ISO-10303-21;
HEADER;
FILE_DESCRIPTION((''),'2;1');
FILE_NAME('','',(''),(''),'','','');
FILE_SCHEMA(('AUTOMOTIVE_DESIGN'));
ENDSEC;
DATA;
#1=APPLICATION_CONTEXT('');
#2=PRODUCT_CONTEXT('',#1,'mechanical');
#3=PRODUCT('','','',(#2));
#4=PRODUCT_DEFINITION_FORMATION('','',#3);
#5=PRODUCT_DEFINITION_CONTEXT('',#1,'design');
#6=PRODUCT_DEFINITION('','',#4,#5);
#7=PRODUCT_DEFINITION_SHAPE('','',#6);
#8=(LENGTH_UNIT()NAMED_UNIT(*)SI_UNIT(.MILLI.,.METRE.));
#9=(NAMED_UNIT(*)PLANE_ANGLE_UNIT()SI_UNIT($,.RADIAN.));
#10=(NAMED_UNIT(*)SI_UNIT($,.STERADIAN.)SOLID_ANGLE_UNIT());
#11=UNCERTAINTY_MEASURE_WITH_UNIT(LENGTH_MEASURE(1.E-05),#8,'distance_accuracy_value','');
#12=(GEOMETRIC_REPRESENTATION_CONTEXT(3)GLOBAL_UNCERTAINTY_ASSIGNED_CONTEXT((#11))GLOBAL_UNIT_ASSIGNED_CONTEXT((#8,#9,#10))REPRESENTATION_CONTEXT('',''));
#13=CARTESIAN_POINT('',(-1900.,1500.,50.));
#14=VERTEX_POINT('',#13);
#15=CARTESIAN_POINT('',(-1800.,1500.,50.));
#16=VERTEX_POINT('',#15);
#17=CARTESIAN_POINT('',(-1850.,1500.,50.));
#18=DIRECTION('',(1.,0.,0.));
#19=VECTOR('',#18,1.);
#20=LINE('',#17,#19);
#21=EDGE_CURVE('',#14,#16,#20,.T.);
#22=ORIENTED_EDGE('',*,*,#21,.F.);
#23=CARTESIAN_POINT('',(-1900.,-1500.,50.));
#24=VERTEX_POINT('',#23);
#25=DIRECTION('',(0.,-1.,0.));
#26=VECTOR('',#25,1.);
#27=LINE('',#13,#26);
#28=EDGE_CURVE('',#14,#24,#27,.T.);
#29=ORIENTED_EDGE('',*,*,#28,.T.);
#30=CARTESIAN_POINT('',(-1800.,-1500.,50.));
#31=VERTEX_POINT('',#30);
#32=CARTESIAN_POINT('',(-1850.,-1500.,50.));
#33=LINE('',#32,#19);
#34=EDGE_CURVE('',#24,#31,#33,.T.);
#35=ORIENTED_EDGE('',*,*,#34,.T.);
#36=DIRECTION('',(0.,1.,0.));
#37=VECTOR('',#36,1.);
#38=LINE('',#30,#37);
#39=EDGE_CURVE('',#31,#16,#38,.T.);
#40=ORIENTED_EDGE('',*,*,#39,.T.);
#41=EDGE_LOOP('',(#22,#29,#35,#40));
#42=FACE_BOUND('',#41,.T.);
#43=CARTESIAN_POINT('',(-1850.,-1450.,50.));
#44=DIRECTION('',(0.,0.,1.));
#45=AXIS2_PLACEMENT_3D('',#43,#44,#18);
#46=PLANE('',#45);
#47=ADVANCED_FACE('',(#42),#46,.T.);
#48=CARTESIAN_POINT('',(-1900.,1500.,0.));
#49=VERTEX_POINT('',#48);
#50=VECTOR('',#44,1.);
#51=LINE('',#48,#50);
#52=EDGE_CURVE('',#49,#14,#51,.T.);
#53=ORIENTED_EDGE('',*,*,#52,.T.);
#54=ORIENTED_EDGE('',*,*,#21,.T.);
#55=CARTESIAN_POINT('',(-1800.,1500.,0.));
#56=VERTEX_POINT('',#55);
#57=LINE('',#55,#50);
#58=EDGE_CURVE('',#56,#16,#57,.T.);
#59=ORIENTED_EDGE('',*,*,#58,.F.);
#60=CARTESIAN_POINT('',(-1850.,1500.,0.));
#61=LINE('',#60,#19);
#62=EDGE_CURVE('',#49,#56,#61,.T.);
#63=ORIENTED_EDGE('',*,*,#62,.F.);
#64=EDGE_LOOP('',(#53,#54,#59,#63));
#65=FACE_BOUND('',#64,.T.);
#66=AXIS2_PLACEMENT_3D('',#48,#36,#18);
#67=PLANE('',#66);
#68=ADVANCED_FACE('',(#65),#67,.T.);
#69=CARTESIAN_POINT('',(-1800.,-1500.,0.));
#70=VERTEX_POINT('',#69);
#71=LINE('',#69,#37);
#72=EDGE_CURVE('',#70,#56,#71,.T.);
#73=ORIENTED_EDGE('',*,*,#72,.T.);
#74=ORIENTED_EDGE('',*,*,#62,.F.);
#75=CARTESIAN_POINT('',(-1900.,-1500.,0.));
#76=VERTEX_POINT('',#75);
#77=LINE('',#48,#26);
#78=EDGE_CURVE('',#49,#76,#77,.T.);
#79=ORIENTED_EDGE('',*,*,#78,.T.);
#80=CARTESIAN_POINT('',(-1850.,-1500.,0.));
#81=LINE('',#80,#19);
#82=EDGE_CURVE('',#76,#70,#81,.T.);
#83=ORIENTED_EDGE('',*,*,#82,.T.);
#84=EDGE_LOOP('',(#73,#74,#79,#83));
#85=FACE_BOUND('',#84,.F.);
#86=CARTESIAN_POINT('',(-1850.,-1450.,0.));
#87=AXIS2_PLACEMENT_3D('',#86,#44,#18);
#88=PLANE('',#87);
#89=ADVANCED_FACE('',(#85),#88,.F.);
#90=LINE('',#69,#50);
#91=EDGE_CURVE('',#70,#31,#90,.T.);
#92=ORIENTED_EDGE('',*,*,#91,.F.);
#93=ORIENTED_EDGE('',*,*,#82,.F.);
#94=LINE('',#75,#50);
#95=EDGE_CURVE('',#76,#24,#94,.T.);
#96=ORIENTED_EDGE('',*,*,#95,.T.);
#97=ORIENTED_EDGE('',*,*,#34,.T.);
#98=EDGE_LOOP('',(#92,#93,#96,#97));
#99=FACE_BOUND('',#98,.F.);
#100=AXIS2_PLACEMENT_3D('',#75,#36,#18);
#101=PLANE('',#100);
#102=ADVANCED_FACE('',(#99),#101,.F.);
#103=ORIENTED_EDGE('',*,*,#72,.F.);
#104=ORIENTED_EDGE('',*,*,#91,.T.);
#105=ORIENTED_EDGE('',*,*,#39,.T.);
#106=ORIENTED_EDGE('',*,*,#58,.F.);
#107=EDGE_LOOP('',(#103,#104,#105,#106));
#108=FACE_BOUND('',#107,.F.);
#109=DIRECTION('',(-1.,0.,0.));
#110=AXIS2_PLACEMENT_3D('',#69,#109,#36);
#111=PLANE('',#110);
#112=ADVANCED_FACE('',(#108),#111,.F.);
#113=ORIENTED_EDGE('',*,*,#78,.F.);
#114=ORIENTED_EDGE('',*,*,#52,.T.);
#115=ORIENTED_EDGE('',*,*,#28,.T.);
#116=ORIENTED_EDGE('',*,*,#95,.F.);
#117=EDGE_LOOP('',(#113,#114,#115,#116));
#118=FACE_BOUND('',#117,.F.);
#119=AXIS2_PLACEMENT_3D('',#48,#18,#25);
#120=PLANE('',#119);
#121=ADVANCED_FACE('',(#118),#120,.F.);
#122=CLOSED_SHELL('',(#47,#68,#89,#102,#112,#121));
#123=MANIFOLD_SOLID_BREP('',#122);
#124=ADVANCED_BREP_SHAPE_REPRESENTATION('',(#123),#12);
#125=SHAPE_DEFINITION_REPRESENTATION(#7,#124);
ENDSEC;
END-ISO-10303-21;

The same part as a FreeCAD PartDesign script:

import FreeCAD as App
import Part
import Sketcher

V = App.Vector
Q = App.Units.Quantity


def add_polygon(sketch, points):
    """Adds a closed chain of lines whose ends are joined by coincident constraints."""
    first, n = sketch.GeometryCount, len(points)
    for a, b in zip(points, points[1:] + points[:1]):
        sketch.addGeometry(Part.LineSegment(App.Vector(*a, 0), App.Vector(*b, 0)), False)
    for i in range(n):
        sketch.addConstraint(Sketcher.Constraint("Coincident", first + i, 2, first + (i + 1) % n, 1))

doc = App.newDocument("Part")
body = doc.addObject("PartDesign::Body", "Body")

# Sketch on XY plane
sketch1 = body.newObject("Sketcher::SketchObject", "Sketch")
sketch1.AttachmentSupport = (doc.getObject("XY_Plane"), [""])
sketch1.MapMode = "FlatFace"
add_polygon(sketch1, [(-1900, -1500), (-1800, -1500), (-1800, 1500), (-1900, 1500)])  # lines 0-3
sketch1.addConstraint([
    Sketcher.Constraint("Horizontal", 0),
    Sketcher.Constraint("Vertical", 1),
    Sketcher.Constraint("Horizontal", 2),
    Sketcher.Constraint("Vertical", 3),
    Sketcher.Constraint("DistanceX", 0, 1, 0, 2, Q("100 mm")),
    Sketcher.Constraint("DistanceY", 1, 1, 1, 2, Q("3000 mm")),
    Sketcher.Constraint("DistanceX", 0, 2, -1, 1, Q("1800 mm")),
    Sketcher.Constraint("DistanceY", 0, 2, -1, 1, Q("1500 mm")),
])
pad1 = body.newObject("PartDesign::Pad", "Pad")
pad1.Profile = sketch1
pad1.Length = 50

doc.recompute()
